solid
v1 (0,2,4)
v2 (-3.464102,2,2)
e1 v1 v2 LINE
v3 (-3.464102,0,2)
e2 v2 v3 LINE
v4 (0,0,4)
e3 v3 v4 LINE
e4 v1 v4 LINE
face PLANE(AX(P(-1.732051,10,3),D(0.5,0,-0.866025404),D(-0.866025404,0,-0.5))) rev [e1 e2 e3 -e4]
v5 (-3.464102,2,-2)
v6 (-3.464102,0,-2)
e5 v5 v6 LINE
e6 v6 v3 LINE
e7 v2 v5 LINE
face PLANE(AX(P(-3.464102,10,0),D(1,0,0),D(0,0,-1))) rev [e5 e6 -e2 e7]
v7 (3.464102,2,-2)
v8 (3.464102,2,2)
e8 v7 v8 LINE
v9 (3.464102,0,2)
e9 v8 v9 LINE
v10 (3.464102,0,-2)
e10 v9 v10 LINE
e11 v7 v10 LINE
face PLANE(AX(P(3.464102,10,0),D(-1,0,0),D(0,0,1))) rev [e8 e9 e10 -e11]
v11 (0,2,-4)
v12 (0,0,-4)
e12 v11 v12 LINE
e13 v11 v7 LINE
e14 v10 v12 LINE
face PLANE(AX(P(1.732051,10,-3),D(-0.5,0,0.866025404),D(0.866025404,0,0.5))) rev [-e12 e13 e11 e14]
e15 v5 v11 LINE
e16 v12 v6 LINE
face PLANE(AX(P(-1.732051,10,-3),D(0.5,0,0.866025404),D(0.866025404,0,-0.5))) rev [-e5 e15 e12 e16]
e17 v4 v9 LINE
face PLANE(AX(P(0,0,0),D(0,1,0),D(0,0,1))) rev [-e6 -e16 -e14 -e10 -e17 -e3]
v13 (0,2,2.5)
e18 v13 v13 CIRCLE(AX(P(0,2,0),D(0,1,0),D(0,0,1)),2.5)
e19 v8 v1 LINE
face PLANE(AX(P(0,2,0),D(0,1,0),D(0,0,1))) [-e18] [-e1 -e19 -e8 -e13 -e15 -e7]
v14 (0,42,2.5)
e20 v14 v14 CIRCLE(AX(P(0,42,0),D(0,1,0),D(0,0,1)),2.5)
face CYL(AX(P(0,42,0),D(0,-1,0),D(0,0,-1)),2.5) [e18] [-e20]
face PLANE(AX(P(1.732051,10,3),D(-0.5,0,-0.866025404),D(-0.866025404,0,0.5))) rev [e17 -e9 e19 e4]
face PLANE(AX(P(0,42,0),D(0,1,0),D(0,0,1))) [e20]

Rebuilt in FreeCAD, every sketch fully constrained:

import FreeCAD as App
import Part
import Sketcher

V = App.Vector
Q = App.Units.Quantity

doc = App.newDocument("Part")
body = doc.addObject("PartDesign::Body", "Body")

sketch1 = doc.addObject("Sketcher::SketchObject", "Sketch")
body.addObject(sketch1)
sketch1.AttachmentSupport = (doc.XZ_Plane, [""])
sketch1.MapMode = "FlatFace"
sketch1.addGeometry(Part.Circle(V(0, 0, 0), V(0, 0, 1), 4), False)
sketch1.addConstraint(Sketcher.Constraint("Coincident", 0, 3, -1, 1))
sketch1.addConstraint(Sketcher.Constraint("Diameter", 0, 8.0))
pad1 = doc.addObject("PartDesign::Pad", "Pad")
body.addObject(pad1)
pad1.Profile = sketch1
pad1.Length = 2
pad1.Reversed = True

sketch2 = doc.addObject("Sketcher::SketchObject", "Sketch001")
body.addObject(sketch2)
sketch2.AttachmentSupport = (doc.XZ_Plane, [""])
sketch2.MapMode = "FlatFace"
sketch2.AttachmentOffset = App.Placement(V(0, 0, -2), App.Rotation())
sketch2.addGeometry(Part.Circle(V(0, 0, 0), V(0, 0, 1), 2.5), False)
sketch2.addConstraint(Sketcher.Constraint("Coincident", 0, 3, -1, 1))
sketch2.addConstraint(Sketcher.Constraint("Diameter", 0, 5.0))
pad2 = doc.addObject("PartDesign::Pad", "Pad001")
body.addObject(pad2)
pad2.Profile = sketch2
pad2.Length = 40
pad2.Reversed = True

sketch3 = doc.addObject("Sketcher::SketchObject", "Sketch002")
body.addObject(sketch3)
sketch3.AttachmentSupport = (doc.XZ_Plane, [""])
sketch3.MapMode = "FlatFace"
sketch3.addGeometry(Part.LineSegment(V(9.3, -9.3, 0), V(9.3, 9.3, 0)), False)
sketch3.addGeometry(Part.LineSegment(V(9.3, 9.3, 0), V(-9.3, 9.3, 0)), False)
sketch3.addGeometry(Part.LineSegment(V(-9.3, 9.3, 0), V(-9.3, -9.3, 0)), False)
sketch3.addGeometry(Part.LineSegment(V(-9.3, -9.3, 0), V(9.3, -9.3, 0)), False)
sketch3.addGeometry(Part.LineSegment(V(3.5, -2, 0), V(0, -4, 0)), False)
sketch3.addGeometry(Part.LineSegment(V(0, -4, 0), V(-3.5, -2, 0)), False)
sketch3.addGeometry(Part.LineSegment(V(-3.5, -2, 0), V(-3.5, 2, 0)), False)
sketch3.addGeometry(Part.LineSegment(V(-3.5, 2, 0), V(0, 4, 0)), False)
sketch3.addGeometry(Part.LineSegment(V(0, 4, 0), V(3.5, 2, 0)), False)
sketch3.addGeometry(Part.LineSegment(V(3.5, 2, 0), V(3.5, -2, 0)), False)
sketch3.addConstraint(Sketcher.Constraint("Coincident", 0, 2, 1, 1))
sketch3.addConstraint(Sketcher.Constraint("Coincident", 1, 2, 2, 1))
sketch3.addConstraint(Sketcher.Constraint("Coincident", 2, 2, 3, 1))
sketch3.addConstraint(Sketcher.Constraint("Coincident", 3, 2, 0, 1))
sketch3.addConstraint(Sketcher.Constraint("Coincident", 4, 2, 5, 1))
sketch3.addConstraint(Sketcher.Constraint("Coincident", 5, 2, 6, 1))
sketch3.addConstraint(Sketcher.Constraint("Coincident", 6, 2, 7, 1))
sketch3.addConstraint(Sketcher.Constraint("Coincident", 7, 2, 8, 1))
sketch3.addConstraint(Sketcher.Constraint("Coincident", 8, 2, 9, 1))
sketch3.addConstraint(Sketcher.Constraint("Coincident", 9, 2, 4, 1))
sketch3.addConstraint(Sketcher.Constraint("Vertical", 0))
sketch3.addConstraint(Sketcher.Constraint("Horizontal", 1))
sketch3.addConstraint(Sketcher.Constraint("Vertical", 2))
sketch3.addConstraint(Sketcher.Constraint("Horizontal", 3))
sketch3.addConstraint(Sketcher.Constraint("Vertical", 6))
sketch3.addConstraint(Sketcher.Constraint("Vertical", 9))
sketch3.addConstraint(Sketcher.Constraint("Symmetric", 0, 2, 2, 2, -1, 1))
sketch3.addConstraint(Sketcher.Constraint("Symmetric", 4, 2, 7, 2, -1, 1))
sketch3.addConstraint(Sketcher.Constraint("Symmetric", 5, 2, 8, 2, -1, 1))
sketch3.addConstraint(Sketcher.Constraint("PointOnObject", 4, 2, -2))
sketch3.addConstraint(Sketcher.Constraint("Parallel", 4, 7))
sketch3.addConstraint(Sketcher.Constraint("Horizontal", 6, 2, 8, 2))
sketch3.addConstraint(Sketcher.Constraint("Equal", 3, 0))
sketch3.addConstraint(Sketcher.Constraint("DistanceY", 6, 1, 6, 2, 4.0))
sketch3.addConstraint(Sketcher.Constraint("Angle", 4, Q("-150 deg")))
sketch3.addConstraint(Sketcher.Constraint("Distance", 4, 4.0))
sketch3.addConstraint(Sketcher.Constraint("DistanceX", 1, 2, 1, 1, 18.7))
pocket1 = doc.addObject("PartDesign::Pocket", "Pocket")
body.addObject(pocket1)
pocket1.Profile = sketch3
pocket1.Length = 10

doc.recompute()
